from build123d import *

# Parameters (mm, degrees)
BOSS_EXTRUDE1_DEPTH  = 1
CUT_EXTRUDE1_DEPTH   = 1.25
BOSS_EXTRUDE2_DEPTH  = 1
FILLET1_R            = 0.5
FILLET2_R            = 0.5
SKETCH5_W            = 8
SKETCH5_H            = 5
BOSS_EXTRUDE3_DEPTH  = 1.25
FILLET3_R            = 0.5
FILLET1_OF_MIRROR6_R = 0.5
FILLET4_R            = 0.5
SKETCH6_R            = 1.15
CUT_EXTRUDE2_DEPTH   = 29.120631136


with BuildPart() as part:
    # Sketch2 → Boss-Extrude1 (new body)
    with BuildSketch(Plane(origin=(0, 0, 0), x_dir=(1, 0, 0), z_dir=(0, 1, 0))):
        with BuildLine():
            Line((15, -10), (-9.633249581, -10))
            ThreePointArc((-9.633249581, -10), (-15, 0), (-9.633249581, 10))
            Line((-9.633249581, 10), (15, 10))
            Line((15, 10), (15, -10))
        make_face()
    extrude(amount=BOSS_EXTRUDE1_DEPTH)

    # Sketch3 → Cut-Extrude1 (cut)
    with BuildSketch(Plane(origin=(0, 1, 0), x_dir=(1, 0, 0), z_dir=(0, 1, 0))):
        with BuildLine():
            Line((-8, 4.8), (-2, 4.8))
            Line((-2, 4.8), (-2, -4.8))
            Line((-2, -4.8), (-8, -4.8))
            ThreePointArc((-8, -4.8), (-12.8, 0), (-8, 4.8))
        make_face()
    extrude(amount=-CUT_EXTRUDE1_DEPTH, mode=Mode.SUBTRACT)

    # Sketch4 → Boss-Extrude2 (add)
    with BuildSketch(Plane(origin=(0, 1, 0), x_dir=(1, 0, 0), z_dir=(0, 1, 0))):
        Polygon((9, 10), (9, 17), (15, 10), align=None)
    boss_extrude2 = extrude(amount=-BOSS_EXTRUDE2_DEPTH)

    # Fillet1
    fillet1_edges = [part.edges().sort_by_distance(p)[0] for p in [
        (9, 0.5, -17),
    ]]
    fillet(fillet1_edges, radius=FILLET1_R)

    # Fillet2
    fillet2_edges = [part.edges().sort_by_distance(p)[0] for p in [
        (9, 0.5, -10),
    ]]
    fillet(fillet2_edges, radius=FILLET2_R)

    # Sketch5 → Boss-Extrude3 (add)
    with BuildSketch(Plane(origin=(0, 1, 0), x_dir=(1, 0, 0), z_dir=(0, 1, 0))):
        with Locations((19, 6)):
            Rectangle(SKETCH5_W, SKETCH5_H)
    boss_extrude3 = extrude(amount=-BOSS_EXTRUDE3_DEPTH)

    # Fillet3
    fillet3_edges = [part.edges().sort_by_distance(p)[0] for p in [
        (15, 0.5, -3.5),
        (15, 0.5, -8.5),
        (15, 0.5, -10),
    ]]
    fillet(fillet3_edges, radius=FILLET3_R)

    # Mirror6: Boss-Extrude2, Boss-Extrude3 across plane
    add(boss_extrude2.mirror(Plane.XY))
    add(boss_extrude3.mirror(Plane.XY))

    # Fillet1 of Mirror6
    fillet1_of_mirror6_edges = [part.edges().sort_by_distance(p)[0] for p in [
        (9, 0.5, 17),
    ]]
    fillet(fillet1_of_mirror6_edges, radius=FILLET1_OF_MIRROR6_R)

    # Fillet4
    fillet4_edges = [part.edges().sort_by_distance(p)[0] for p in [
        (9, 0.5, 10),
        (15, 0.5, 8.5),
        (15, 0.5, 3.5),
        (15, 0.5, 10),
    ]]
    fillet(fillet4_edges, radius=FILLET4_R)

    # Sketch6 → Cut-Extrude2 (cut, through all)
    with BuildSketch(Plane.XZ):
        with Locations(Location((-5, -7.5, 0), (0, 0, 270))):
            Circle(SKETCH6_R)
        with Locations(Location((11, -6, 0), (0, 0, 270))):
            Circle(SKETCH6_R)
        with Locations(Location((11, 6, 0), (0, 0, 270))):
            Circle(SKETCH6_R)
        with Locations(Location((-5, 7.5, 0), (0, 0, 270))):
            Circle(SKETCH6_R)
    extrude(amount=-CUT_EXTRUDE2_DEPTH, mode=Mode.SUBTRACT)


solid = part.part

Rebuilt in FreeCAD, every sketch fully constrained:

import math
import FreeCAD as App
import Part
import Sketcher

V = App.Vector
Q = App.Units.Quantity


def edges_at(feature, points):
    """Names of the edges that pass closest to the given points."""
    edges = feature.Shape.Edges
    near = lambda p: min(range(len(edges)), key=lambda i: edges[i].distToShape(Part.Vertex(*p))[0])
    return sorted({f"Edge{near(p) + 1}" for p in points})

doc = App.newDocument("Part")
body = doc.addObject("PartDesign::Body", "Body")

# Sketch on XZ plane
sketch1 = body.newObject("Sketcher::SketchObject", "Sketch")
sketch1.AttachmentSupport = (doc.getObject("XZ_Plane"), [""])
sketch1.MapMode = "FlatFace"
sketch1.addGeometry([
    Part.LineSegment(V(-9.63325, 10, 0), V(15, 10, 0)),
    Part.LineSegment(V(15, 10, 0), V(15, -10, 0)),
    Part.LineSegment(V(15, -10, 0), V(-9.63325, -10, 0)),
    Part.ArcOfCircle(Part.Circle(V(-3, 0, 0), V(0, 0, 1), 12), math.radians(123.55731), math.radians(236.44269)),
], False)
sketch1.addConstraint([
    Sketcher.Constraint("Coincident", 0, 2, 1, 1),
    Sketcher.Constraint("Coincident", 1, 2, 2, 1),
    Sketcher.Constraint("Coincident", 2, 2, 3, 2),
    Sketcher.Constraint("Coincident", 3, 1, 0, 1),
    Sketcher.Constraint("Horizontal", 0),
    Sketcher.Constraint("Vertical", 1),
    Sketcher.Constraint("Horizontal", 2),
    Sketcher.Constraint("Symmetric", 2, 2, 3, 1, -1),
    Sketcher.Constraint("Radius", 3, Q("12 mm")),
    Sketcher.Constraint("DistanceY", 1, 2, 1, 1, Q("20 mm")),
    Sketcher.Constraint("DistanceX", 3, 3, -1, 1, Q("3 mm")),
    Sketcher.Constraint("DistanceX", -1, 1, 0, 2, Q("15 mm")),
])
pad1 = body.newObject("PartDesign::Pad", "Pad")
pad1.Profile = sketch1
pad1.Length = 1
pad1.Reversed = True

# Sketch on XZ plane
sketch2 = body.newObject("Sketcher::SketchObject", "Sketch001")
sketch2.AttachmentSupport = (doc.getObject("XZ_Plane"), [""])
sketch2.MapMode = "FlatFace"
sketch2.AttachmentOffset = App.Placement(V(0, 0, -1), App.Rotation())
sketch2.addGeometry([
    Part.LineSegment(V(-2, -4.8, 0), V(-8, -4.8, 0)),
    Part.ArcOfCircle(Part.Circle(V(-8, 0, 0), V(0, 0, 1), 4.8), math.radians(90), math.radians(270)),
    Part.LineSegment(V(-8, 4.8, 0), V(-2, 4.8, 0)),
    Part.LineSegment(V(-2, 4.8, 0), V(-2, -4.8, 0)),
], False)
sketch2.addConstraint([
    Sketcher.Constraint("Tangent", 0, 2, 1, 2),
    Sketcher.Constraint("Tangent", 1, 1, 2, 1),
    Sketcher.Constraint("Coincident", 2, 2, 3, 1),
    Sketcher.Constraint("Coincident", 3, 2, 0, 1),
    Sketcher.Constraint("Horizontal", 0),
    Sketcher.Constraint("Horizontal", 2),
    Sketcher.Constraint("Vertical", 3),
    Sketcher.Constraint("PointOnObject", 1, 3, -1),
    Sketcher.Constraint("Radius", 1, Q("4.8 mm")),
    Sketcher.Constraint("DistanceX", 0, 2, 0, 1, Q("6 mm")),
    Sketcher.Constraint("DistanceX", 1, 3, -1, 1, Q("8 mm")),
])
pocket1 = body.newObject("PartDesign::Pocket", "Pocket")
pocket1.Profile = sketch2
pocket1.Length = 1.25
pocket1.Reversed = True

# Sketch on XZ plane
sketch3 = body.newObject("Sketcher::SketchObject", "Sketch002")
sketch3.AttachmentSupport = (doc.getObject("XZ_Plane"), [""])
sketch3.MapMode = "FlatFace"
sketch3.AttachmentOffset = App.Placement(V(0, 0, -1), App.Rotation())
sketch3.addGeometry([
    Part.LineSegment(V(9, -17, 0), V(9, -10, 0)),
    Part.LineSegment(V(9, -10, 0), V(15, -10, 0)),
    Part.LineSegment(V(15, -10, 0), V(9, -17, 0)),
], False)
sketch3.addConstraint([
    Sketcher.Constraint("Coincident", 0, 2, 1, 1),
    Sketcher.Constraint("Coincident", 1, 2, 2, 1),
    Sketcher.Constraint("Coincident", 2, 2, 0, 1),
    Sketcher.Constraint("Vertical", 0),
    Sketcher.Constraint("Horizontal", 1),
    Sketcher.Constraint("DistanceX", 1, 1, 1, 2, Q("6 mm")),
    Sketcher.Constraint("DistanceY", 0, 1, 0, 2, Q("7 mm")),
    Sketcher.Constraint("DistanceX", -1, 1, 0, 2, Q("9 mm")),
    Sketcher.Constraint("DistanceY", 0, 2, -1, 1, Q("10 mm")),
])
pad2 = body.newObject("PartDesign::Pad", "Pad001")
pad2.Profile = sketch3
pad2.Length = 1
doc.recompute()

fillet = body.newObject("PartDesign::Fillet", "Fillet")
fillet.Base = (pad2, edges_at(pad2, [(9, 0.5, -17)]))
fillet.Radius = 0.5
doc.recompute()

fillet2 = body.newObject("PartDesign::Fillet", "Fillet001")
fillet2.Base = (fillet, edges_at(fillet, [(9, 0.5, -10)]))
fillet2.Radius = 0.5

# Sketch on XZ plane
sketch4 = body.newObject("Sketcher::SketchObject", "Sketch003")
sketch4.AttachmentSupport = (doc.getObject("XZ_Plane"), [""])
sketch4.MapMode = "FlatFace"
sketch4.AttachmentOffset = App.Placement(V(0, 0, -1), App.Rotation())
sketch4.addGeometry([
    Part.LineSegment(V(15, -8.5, 0), V(15, -3.5, 0)),
    Part.LineSegment(V(15, -3.5, 0), V(23, -3.5, 0)),
    Part.LineSegment(V(23, -3.5, 0), V(23, -8.5, 0)),
    Part.LineSegment(V(23, -8.5, 0), V(15, -8.5, 0)),
], False)
sketch4.addConstraint([
    Sketcher.Constraint("Coincident", 0, 2, 1, 1),
    Sketcher.Constraint("Coincident", 1, 2, 2, 1),
    Sketcher.Constraint("Coincident", 2, 2, 3, 1),
    Sketcher.Constraint("Coincident", 3, 2, 0, 1),
    Sketcher.Constraint("Vertical", 0),
    Sketcher.Constraint("Horizontal", 1),
    Sketcher.Constraint("Vertical", 2),
    Sketcher.Constraint("Horizontal", 3),
    Sketcher.Constraint("DistanceX", 1, 1, 1, 2, Q("8 mm")),
    Sketcher.Constraint("DistanceY", 0, 1, 0, 2, Q("5 mm")),
    Sketcher.Constraint("DistanceX", -1, 1, 0, 2, Q("15 mm")),
    Sketcher.Constraint("DistanceY", 0, 2, -1, 1, Q("3.5 mm")),
])
pad3 = body.newObject("PartDesign::Pad", "Pad002")
pad3.Profile = sketch4
pad3.Length = 1.25
doc.recompute()

fillet3 = body.newObject("PartDesign::Fillet", "Fillet002")
fillet3.Base = (pad3, edges_at(pad3, [(15, 0.5, -3.5), (15, 0.5, -8.5), (15, 0.5, -10)]))
fillet3.Radius = 0.5
doc.recompute()

mirrored = body.newObject("PartDesign::Mirrored", "Mirrored")
mirrored.Originals = [pad2, pad3]
mirrored.MirrorPlane = (doc.getObject("XY_Plane"), [""])
body.Tip = mirrored
doc.recompute()

fillet4 = body.newObject("PartDesign::Fillet", "Fillet003")
fillet4.Base = (mirrored, edges_at(mirrored, [(9, 0.5, 17)]))
fillet4.Radius = 0.5
doc.recompute()

fillet5 = body.newObject("PartDesign::Fillet", "Fillet004")
fillet5.Base = (fillet4, edges_at(fillet4, [
    (9, 0.5, 10),
    (15, 0.5, 8.5),
    (15, 0.5, 3.5),
    (15, 0.5, 10),
]))
fillet5.Radius = 0.5

# Sketch on XZ plane
sketch5 = body.newObject("Sketcher::SketchObject", "Sketch004")
sketch5.AttachmentSupport = (doc.getObject("XZ_Plane"), [""])
sketch5.MapMode = "FlatFace"
sketch5.addGeometry([
    Part.Circle(V(-5, -7.5, 0), V(0, 0, 1), 1.15),
    Part.Circle(V(11, -6, 0), V(0, 0, 1), 1.15),
    Part.Circle(V(11, 6, 0), V(0, 0, 1), 1.15),
    Part.Circle(V(-5, 7.5, 0), V(0, 0, 1), 1.15),
], False)
sketch5.addConstraint([
    Sketcher.Constraint("Equal", 0, 1),
    Sketcher.Constraint("Equal", 1, 2),
    Sketcher.Constraint("Equal", 2, 3),
    Sketcher.Constraint("Symmetric", 1, 3, 2, 3, -1),
    Sketcher.Constraint("Symmetric", 0, 3, 3, 3, -1),
    Sketcher.Constraint("Diameter", 0, Q("2.3 mm")),
    Sketcher.Constraint("DistanceX", 0, 3, -1, 1, Q("5 mm")),
    Sketcher.Constraint("DistanceX", -1, 1, 1, 3, Q("11 mm")),
    Sketcher.Constraint("DistanceY", 1, 3, -1, 1, Q("6 mm")),
    Sketcher.Constraint("DistanceY", 0, 3, 3, 3, Q("15 mm")),
])
pocket2 = body.newObject("PartDesign::Pocket", "Pocket001")
pocket2.Profile = sketch5
pocket2.Type = "ThroughAll"

doc.recompute()
